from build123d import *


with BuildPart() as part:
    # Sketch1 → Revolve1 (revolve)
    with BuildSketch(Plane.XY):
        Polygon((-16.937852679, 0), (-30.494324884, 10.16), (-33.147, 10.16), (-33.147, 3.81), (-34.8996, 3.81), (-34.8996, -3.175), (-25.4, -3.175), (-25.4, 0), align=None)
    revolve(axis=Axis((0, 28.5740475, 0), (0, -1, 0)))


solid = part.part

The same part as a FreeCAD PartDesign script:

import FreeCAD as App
import Part
import Sketcher
from FreeCAD import Vector
Q = App.Units.Quantity

doc = App.newDocument("Part")
body = doc.addObject("PartDesign::Body", "Body")

# Sketch on XY plane
sketch1 = doc.addObject("Sketcher::SketchObject", "Sketch")
body.addObject(sketch1)
sketch1.AttachmentSupport = (doc.XY_Plane, [""])
sketch1.MapMode = "FlatFace"
sketch1.addGeometry(Part.LineSegment(Vector(-16.9, 0, 0), Vector(-30.5, 10.2, 0)), False)
sketch1.addGeometry(Part.LineSegment(Vector(-30.5, 10.2, 0), Vector(-33.1, 10.2, 0)), False)
sketch1.addGeometry(Part.LineSegment(Vector(-33.1, 10.2, 0), Vector(-33.1, 3.8, 0)), False)
sketch1.addGeometry(Part.LineSegment(Vector(-33.1, 3.8, 0), Vector(-34.9, 3.8, 0)), False)
sketch1.addGeometry(Part.LineSegment(Vector(-34.9, 3.8, 0), Vector(-34.9, -3.2, 0)), False)
sketch1.addGeometry(Part.LineSegment(Vector(-34.9, -3.2, 0), Vector(-25.4, -3.2, 0)), False)
sketch1.addGeometry(Part.LineSegment(Vector(-25.4, -3.2, 0), Vector(-25.4, 0, 0)), False)
sketch1.addGeometry(Part.LineSegment(Vector(-25.4, 0, 0), Vector(-16.9, 0, 0)), False)
sketch1.addConstraint(Sketcher.Constraint("Coincident", 0, 2, 1, 1))
sketch1.addConstraint(Sketcher.Constraint("Coincident", 1, 2, 2, 1))
sketch1.addConstraint(Sketcher.Constraint("Coincident", 2, 2, 3, 1))
sketch1.addConstraint(Sketcher.Constraint("Coincident", 3, 2, 4, 1))
sketch1.addConstraint(Sketcher.Constraint("Coincident", 4, 2, 5, 1))
sketch1.addConstraint(Sketcher.Constraint("Coincident", 5, 2, 6, 1))
sketch1.addConstraint(Sketcher.Constraint("Coincident", 6, 2, 7, 1))
sketch1.addConstraint(Sketcher.Constraint("Coincident", 7, 2, 0, 1))
sketch1.addConstraint(Sketcher.Constraint("Horizontal", 1))
sketch1.addConstraint(Sketcher.Constraint("Vertical", 2))
sketch1.addConstraint(Sketcher.Constraint("Horizontal", 3))
sketch1.addConstraint(Sketcher.Constraint("Vertical", 4))
sketch1.addConstraint(Sketcher.Constraint("Horizontal", 5))
sketch1.addConstraint(Sketcher.Constraint("Vertical", 6))
sketch1.addConstraint(Sketcher.Constraint("Horizontal", 7))
sketch1.addConstraint(Sketcher.Constraint("PointOnObject", 6, 2, -1))
sketch1.addConstraint(Sketcher.Constraint("DistanceX", 5, 2, -1, 1, Q("1 in")))
sketch1.addConstraint(Sketcher.Constraint("DistanceY", 2, 2, 2, 1, Q("0.25 in")))
sketch1.addConstraint(Sketcher.Constraint("DistanceY", -1, 1, 0, 2, Q("0.4 in")))
sketch1.addConstraint(Sketcher.Constraint("DistanceX", 3, 2, 3, 1, Q("0.069 in")))
sketch1.addConstraint(Sketcher.Constraint("DistanceX", 5, 1, 5, 2, Q("0.374 in")))
sketch1.addConstraint(Sketcher.Constraint("DistanceY", 4, 2, 4, 1, Q("0.275 in")))
sketch1.addConstraint(Sketcher.Constraint("Angle", 0, Q("143.15 deg")))
sketch1.addConstraint(Sketcher.Constraint("DistanceX", 1, 2, 1, 1, 2.652675))
revolution = doc.addObject("PartDesign::Revolution", "Revolution")
body.addObject(revolution)
revolution.Profile = sketch1
revolution.ReferenceAxis = (sketch1, ["V_Axis"])
revolution.Angle = 360

doc.recompute()
